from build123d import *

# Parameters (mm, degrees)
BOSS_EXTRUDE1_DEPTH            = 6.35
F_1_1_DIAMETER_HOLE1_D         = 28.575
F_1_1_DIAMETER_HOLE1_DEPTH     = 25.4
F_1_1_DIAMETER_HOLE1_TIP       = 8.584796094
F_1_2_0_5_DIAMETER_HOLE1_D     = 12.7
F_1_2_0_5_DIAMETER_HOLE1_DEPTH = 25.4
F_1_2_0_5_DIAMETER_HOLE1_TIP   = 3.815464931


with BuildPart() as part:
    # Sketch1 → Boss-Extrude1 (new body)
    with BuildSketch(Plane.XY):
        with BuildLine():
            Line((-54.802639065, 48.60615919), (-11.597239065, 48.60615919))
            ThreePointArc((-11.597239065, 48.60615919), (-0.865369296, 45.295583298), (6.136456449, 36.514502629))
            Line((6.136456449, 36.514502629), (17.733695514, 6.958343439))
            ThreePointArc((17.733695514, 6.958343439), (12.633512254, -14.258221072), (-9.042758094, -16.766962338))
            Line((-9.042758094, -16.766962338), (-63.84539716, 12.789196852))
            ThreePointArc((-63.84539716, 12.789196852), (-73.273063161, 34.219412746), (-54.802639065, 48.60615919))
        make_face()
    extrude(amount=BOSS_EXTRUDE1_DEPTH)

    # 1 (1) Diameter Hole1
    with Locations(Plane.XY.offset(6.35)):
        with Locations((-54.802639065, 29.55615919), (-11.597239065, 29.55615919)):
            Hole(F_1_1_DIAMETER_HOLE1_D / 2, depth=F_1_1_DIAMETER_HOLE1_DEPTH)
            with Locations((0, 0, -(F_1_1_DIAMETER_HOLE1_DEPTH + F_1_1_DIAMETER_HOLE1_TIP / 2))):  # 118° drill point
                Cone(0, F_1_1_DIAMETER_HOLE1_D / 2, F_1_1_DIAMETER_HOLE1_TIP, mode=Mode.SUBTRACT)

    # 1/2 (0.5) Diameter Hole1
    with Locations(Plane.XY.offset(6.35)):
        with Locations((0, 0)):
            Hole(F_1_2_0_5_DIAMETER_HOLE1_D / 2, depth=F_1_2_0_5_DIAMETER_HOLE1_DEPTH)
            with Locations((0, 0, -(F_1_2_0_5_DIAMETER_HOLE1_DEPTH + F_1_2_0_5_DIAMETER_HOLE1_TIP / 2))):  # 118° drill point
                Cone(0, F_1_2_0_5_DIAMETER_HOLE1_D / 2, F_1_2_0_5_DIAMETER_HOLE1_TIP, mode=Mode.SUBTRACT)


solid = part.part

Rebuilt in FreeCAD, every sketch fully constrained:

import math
import FreeCAD as App
import Part
import Sketcher

V = App.Vector
Q = App.Units.Quantity

doc = App.newDocument("Part")
params = doc.addObject("Spreadsheet::Sheet", "Params")
for row, (alias, value) in enumerate([
    ("sketch1_radius", "0.75 in"),
    ("sketch1_length", "1.25 in"),
    ("sketch1_width", "1.701 in"),
    ("pad1_length", "0.25 in"),
    ("sketch2_diameter", "1.125 in"),
    ("hole_diameter", "1.125 in"),
    ("hole_depth", "1 in"),
    ("sketch3_diameter", "0.5 in"),
    ("hole2_diameter", "0.5 in"),
    ("hole2_depth", "1 in"),
], start=1):
    params.set(f"A{row}", alias)
    params.set(f"B{row}", "=" + value)
    params.setAlias(f"B{row}", alias)

body = doc.addObject("PartDesign::Body", "Body")

sketch1 = body.newObject("Sketcher::SketchObject", "Sketch")
sketch1.AttachmentSupport = (doc.getObject("XY_Plane"), [""])
sketch1.MapMode = "FlatFace"
sketch1.addGeometry([
    Part.LineSegment(V(-12, 49, 0), V(-55, 49, 0)),
    Part.ArcOfCircle(Part.Circle(V(-55, 30, 0), V(0, 0, 1), 19), math.radians(90), math.radians(242)),
    Part.LineSegment(V(-64, 13, 0), V(-9, -17, 0)),
    Part.ArcOfCircle(Part.Circle(V(0, 0, 0), V(0, 0, 1), 19), math.radians(-118), math.radians(21)),
    Part.LineSegment(V(18, 7, 0), V(6, 37, 0)),
    Part.ArcOfCircle(Part.Circle(V(-12, 30, 0), V(0, 0, 1), 19), math.radians(21), math.radians(90)),
], False)
sketch1.addConstraint([
    Sketcher.Constraint("Tangent", 0, 2, 1, 1),
    Sketcher.Constraint("Tangent", 1, 2, 2, 1),
    Sketcher.Constraint("Tangent", 2, 2, 3, 1),
    Sketcher.Constraint("Tangent", 3, 2, 4, 1),
    Sketcher.Constraint("Tangent", 4, 2, 5, 1),
    Sketcher.Constraint("Tangent", 5, 2, 0, 1),
    Sketcher.Constraint("Horizontal", 0),
    Sketcher.Constraint("Coincident", 3, 3, -1, 1),
    Sketcher.Constraint("Equal", 1, 3),
    Sketcher.Constraint("Equal", 3, 5),
    Sketcher.Constraint("Radius", 1, Q("0.75 in")),
    Sketcher.Constraint("Distance", 4, Q("1.25 in")),
    Sketcher.Constraint("DistanceX", 0, 2, 0, 1, Q("1.701 in")),
    Sketcher.Constraint("DistanceX", 1, 3, -1, 1, 54.802639),
])
sketch1.setExpression("Constraints[10]", "Params.sketch1_radius")
sketch1.setExpression("Constraints[11]", "Params.sketch1_length")
sketch1.setExpression("Constraints[12]", "Params.sketch1_width")
pad1 = body.newObject("PartDesign::Pad", "Pad")
pad1.Profile = sketch1
pad1.setExpression("Length", "Params.pad1_length")

sketch2 = body.newObject("Sketcher::SketchObject", "Sketch001")
sketch2.AttachmentSupport = (doc.getObject("XY_Plane"), [""])
sketch2.MapMode = "FlatFace"
sketch2.AttachmentOffset = App.Placement(V(0, 0, 0.25 * 25.4), App.Rotation())
sketch2.addGeometry([
    Part.Circle(V(-55, 30, 0), V(0, 0, 1), 14),
    Part.Circle(V(-12, 30, 0), V(0, 0, 1), 14),
], False)
sketch2.addConstraint([
    Sketcher.Constraint("Equal", 0, 1),
    Sketcher.Constraint("Horizontal", 0, 3, 1, 3),
    Sketcher.Constraint("Diameter", 0, Q("1.125 in")),
    Sketcher.Constraint("DistanceX", 0, 3, 1, 3, Q("1.701 in")),
    Sketcher.Constraint("DistanceX", 0, 3, -1, 1, 54.802639),
    Sketcher.Constraint("DistanceY", -1, 1, 0, 3, 29.556159),
])
sketch2.setExpression("Constraints[2]", "Params.sketch2_diameter")
doc.recompute()
hole = body.newObject("PartDesign::Hole", "Hole")
hole.Profile = sketch2
hole.ThreadType = "None"
hole.setExpression("Diameter", "Params.hole_diameter")
hole.DepthType = "Dimension"
hole.setExpression("Depth", "Params.hole_depth")
hole.DrillPoint = "Angled"
hole.DrillPointAngle = 118

sketch3 = body.newObject("Sketcher::SketchObject", "Sketch002")
sketch3.AttachmentSupport = (doc.getObject("XY_Plane"), [""])
sketch3.MapMode = "FlatFace"
sketch3.AttachmentOffset = App.Placement(V(0, 0, 0.25 * 25.4), App.Rotation())
sketch3.addGeometry(Part.Circle(V(0, 0, 0), V(0, 0, 1), 6), False)
sketch3.addConstraint([
    Sketcher.Constraint("Coincident", 0, 3, -1, 1),
    Sketcher.Constraint("Diameter", 0, Q("0.5 in")),
])
sketch3.setExpression("Constraints[1]", "Params.sketch3_diameter")
doc.recompute()
hole2 = body.newObject("PartDesign::Hole", "Hole001")
hole2.Profile = sketch3
hole2.ThreadType = "None"
hole2.setExpression("Diameter", "Params.hole2_diameter")
hole2.DepthType = "Dimension"
hole2.setExpression("Depth", "Params.hole2_depth")
hole2.DrillPoint = "Angled"
hole2.DrillPointAngle = 118

doc.recompute()
